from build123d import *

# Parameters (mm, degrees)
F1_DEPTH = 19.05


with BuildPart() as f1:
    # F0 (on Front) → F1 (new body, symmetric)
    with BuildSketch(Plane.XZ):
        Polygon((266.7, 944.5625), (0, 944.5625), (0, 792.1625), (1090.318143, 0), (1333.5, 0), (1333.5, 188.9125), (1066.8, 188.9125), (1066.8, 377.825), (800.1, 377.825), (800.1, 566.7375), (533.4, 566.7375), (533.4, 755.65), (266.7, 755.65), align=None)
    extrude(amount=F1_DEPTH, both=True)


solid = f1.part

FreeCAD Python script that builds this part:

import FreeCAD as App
import Part
import Sketcher
Q = App.Units.Quantity

doc = App.newDocument("Part")
params = doc.addObject("Spreadsheet::Sheet", "Params")
for row, (alias, value) in enumerate([
    ("sketch1_height", "6 in"),
    ("sketch1_width", "10.5 in"),
    ("sketch1_height2", "7.4375 in"),
    ("pad1_length", "1.5 in"),
], start=1):
    params.set(f"A{row}", alias)
    params.set(f"B{row}", "=" + value)
    params.setAlias(f"B{row}", alias)

body = doc.addObject("PartDesign::Body", "Body")

sketch1 = body.newObject("Sketcher::SketchObject", "Sketch")
sketch1.AttachmentSupport = (doc.getObject("XZ_Plane"), [""])
sketch1.MapMode = "FlatFace"
sketch1.addGeometry(Part.LineSegment(App.Vector(267, 945, 0), App.Vector(0, 945, 0)), False)
sketch1.addGeometry(Part.LineSegment(App.Vector(0, 945, 0), App.Vector(0, 792, 0)), False)
sketch1.addGeometry(Part.LineSegment(App.Vector(0, 792, 0), App.Vector(1090, 0, 0)), False)
sketch1.addGeometry(Part.LineSegment(App.Vector(1090, 0, 0), App.Vector(1334, 0, 0)), False)
sketch1.addGeometry(Part.LineSegment(App.Vector(1334, 0, 0), App.Vector(1334, 189, 0)), False)
sketch1.addGeometry(Part.LineSegment(App.Vector(1334, 189, 0), App.Vector(1067, 189, 0)), False)
sketch1.addGeometry(Part.LineSegment(App.Vector(1067, 189, 0), App.Vector(1067, 378, 0)), False)
sketch1.addGeometry(Part.LineSegment(App.Vector(1067, 378, 0), App.Vector(800, 378, 0)), False)
sketch1.addGeometry(Part.LineSegment(App.Vector(800, 378, 0), App.Vector(800, 567, 0)), False)
sketch1.addGeometry(Part.LineSegment(App.Vector(800, 567, 0), App.Vector(533, 567, 0)), False)
sketch1.addGeometry(Part.LineSegment(App.Vector(533, 567, 0), App.Vector(533, 756, 0)), False)
sketch1.addGeometry(Part.LineSegment(App.Vector(533, 756, 0), App.Vector(267, 756, 0)), False)
sketch1.addGeometry(Part.LineSegment(App.Vector(267, 756, 0), App.Vector(267, 945, 0)), False)
sketch1.addConstraint(Sketcher.Constraint("Coincident", 0, 2, 1, 1))
sketch1.addConstraint(Sketcher.Constraint("Coincident", 1, 2, 2, 1))
sketch1.addConstraint(Sketcher.Constraint("Coincident", 2, 2, 3, 1))
sketch1.addConstraint(Sketcher.Constraint("Coincident", 3, 2, 4, 1))
sketch1.addConstraint(Sketcher.Constraint("Coincident", 4, 2, 5, 1))
sketch1.addConstraint(Sketcher.Constraint("Coincident", 5, 2, 6, 1))
sketch1.addConstraint(Sketcher.Constraint("Coincident", 6, 2, 7, 1))
sketch1.addConstraint(Sketcher.Constraint("Coincident", 7, 2, 8, 1))
sketch1.addConstraint(Sketcher.Constraint("Coincident", 8, 2, 9, 1))
sketch1.addConstraint(Sketcher.Constraint("Coincident", 9, 2, 10, 1))
sketch1.addConstraint(Sketcher.Constraint("Coincident", 10, 2, 11, 1))
sketch1.addConstraint(Sketcher.Constraint("Coincident", 11, 2, 12, 1))
sketch1.addConstraint(Sketcher.Constraint("Coincident", 12, 2, 0, 1))
sketch1.addConstraint(Sketcher.Constraint("Horizontal", 0))
sketch1.addConstraint(Sketcher.Constraint("Vertical", 1))
sketch1.addConstraint(Sketcher.Constraint("Horizontal", 3))
sketch1.addConstraint(Sketcher.Constraint("Vertical", 4))
sketch1.addConstraint(Sketcher.Constraint("Horizontal", 5))
sketch1.addConstraint(Sketcher.Constraint("Vertical", 6))
sketch1.addConstraint(Sketcher.Constraint("Horizontal", 7))
sketch1.addConstraint(Sketcher.Constraint("Vertical", 8))
sketch1.addConstraint(Sketcher.Constraint("Horizontal", 9))
sketch1.addConstraint(Sketcher.Constraint("Vertical", 10))
sketch1.addConstraint(Sketcher.Constraint("Horizontal", 11))
sketch1.addConstraint(Sketcher.Constraint("Vertical", 12))
sketch1.addConstraint(Sketcher.Constraint("PointOnObject", 0, 2, -2))
sketch1.addConstraint(Sketcher.Constraint("PointOnObject", 2, 2, -1))
sketch1.addConstraint(Sketcher.Constraint("Equal", 0, 5))
sketch1.addConstraint(Sketcher.Constraint("Equal", 5, 7))
sketch1.addConstraint(Sketcher.Constraint("Equal", 7, 9))
sketch1.addConstraint(Sketcher.Constraint("Equal", 9, 11))
sketch1.addConstraint(Sketcher.Constraint("Equal", 4, 6))
sketch1.addConstraint(Sketcher.Constraint("Equal", 6, 8))
sketch1.addConstraint(Sketcher.Constraint("Equal", 8, 10))
sketch1.addConstraint(Sketcher.Constraint("Equal", 10, 12))
sketch1.addConstraint(Sketcher.Constraint("DistanceY", 1, 2, 1, 1, Q("6 in")))
sketch1.addConstraint(Sketcher.Constraint("DistanceX", 0, 2, 0, 1, Q("10.5 in")))
sketch1.addConstraint(Sketcher.Constraint("Angle", 2, Q("-36 deg")))
sketch1.addConstraint(Sketcher.Constraint("DistanceY", 4, 1, 4, 2, Q("7.4375 in")))
sketch1.setExpression("Constraints[35]", "Params.sketch1_height")
sketch1.setExpression("Constraints[36]", "Params.sketch1_width")
sketch1.setExpression("Constraints[38]", "Params.sketch1_height2")
pad1 = body.newObject("PartDesign::Pad", "Pad")
pad1.Profile = sketch1
pad1.setExpression("Length", "Params.pad1_length")
pad1.Midplane = True

doc.recompute()
